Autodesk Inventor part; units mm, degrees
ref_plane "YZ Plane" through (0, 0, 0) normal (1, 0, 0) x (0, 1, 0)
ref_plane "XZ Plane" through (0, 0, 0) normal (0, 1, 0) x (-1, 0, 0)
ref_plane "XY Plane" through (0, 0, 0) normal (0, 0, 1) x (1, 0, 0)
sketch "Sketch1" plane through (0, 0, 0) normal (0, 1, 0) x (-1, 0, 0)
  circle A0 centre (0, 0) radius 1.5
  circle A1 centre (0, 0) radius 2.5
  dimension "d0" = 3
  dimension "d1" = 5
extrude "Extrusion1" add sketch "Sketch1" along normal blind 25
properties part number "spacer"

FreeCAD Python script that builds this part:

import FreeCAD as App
import Part
import Sketcher
from FreeCAD import Vector
Q = App.Units.Quantity

doc = App.newDocument("Part")
body = doc.addObject("PartDesign::Body", "Body")

sketch1 = body.newObject("Sketcher::SketchObject", "Sketch")
sketch1.AttachmentSupport = (doc.getObject("XZ_Plane"), [""])
sketch1.MapMode = "FlatFace"
sketch1.addGeometry(Part.Circle(Vector(0, 0, 0), Vector(0, 0, 1), 2.5), False)
sketch1.addGeometry(Part.Circle(Vector(0, 0, 0), Vector(0, 0, 1), 1.5), False)
sketch1.addConstraint(Sketcher.Constraint("Coincident", 0, 3, -1, 1))
sketch1.addConstraint(Sketcher.Constraint("Coincident", 1, 3, -1, 1))
sketch1.addConstraint(Sketcher.Constraint("Diameter", 0, Q("5 mm")))
sketch1.addConstraint(Sketcher.Constraint("Diameter", 1, Q("3 mm")))
pad1 = body.newObject("PartDesign::Pad", "Pad")
pad1.Profile = sketch1
pad1.Length = 25
pad1.Reversed = True

doc.recompute()
